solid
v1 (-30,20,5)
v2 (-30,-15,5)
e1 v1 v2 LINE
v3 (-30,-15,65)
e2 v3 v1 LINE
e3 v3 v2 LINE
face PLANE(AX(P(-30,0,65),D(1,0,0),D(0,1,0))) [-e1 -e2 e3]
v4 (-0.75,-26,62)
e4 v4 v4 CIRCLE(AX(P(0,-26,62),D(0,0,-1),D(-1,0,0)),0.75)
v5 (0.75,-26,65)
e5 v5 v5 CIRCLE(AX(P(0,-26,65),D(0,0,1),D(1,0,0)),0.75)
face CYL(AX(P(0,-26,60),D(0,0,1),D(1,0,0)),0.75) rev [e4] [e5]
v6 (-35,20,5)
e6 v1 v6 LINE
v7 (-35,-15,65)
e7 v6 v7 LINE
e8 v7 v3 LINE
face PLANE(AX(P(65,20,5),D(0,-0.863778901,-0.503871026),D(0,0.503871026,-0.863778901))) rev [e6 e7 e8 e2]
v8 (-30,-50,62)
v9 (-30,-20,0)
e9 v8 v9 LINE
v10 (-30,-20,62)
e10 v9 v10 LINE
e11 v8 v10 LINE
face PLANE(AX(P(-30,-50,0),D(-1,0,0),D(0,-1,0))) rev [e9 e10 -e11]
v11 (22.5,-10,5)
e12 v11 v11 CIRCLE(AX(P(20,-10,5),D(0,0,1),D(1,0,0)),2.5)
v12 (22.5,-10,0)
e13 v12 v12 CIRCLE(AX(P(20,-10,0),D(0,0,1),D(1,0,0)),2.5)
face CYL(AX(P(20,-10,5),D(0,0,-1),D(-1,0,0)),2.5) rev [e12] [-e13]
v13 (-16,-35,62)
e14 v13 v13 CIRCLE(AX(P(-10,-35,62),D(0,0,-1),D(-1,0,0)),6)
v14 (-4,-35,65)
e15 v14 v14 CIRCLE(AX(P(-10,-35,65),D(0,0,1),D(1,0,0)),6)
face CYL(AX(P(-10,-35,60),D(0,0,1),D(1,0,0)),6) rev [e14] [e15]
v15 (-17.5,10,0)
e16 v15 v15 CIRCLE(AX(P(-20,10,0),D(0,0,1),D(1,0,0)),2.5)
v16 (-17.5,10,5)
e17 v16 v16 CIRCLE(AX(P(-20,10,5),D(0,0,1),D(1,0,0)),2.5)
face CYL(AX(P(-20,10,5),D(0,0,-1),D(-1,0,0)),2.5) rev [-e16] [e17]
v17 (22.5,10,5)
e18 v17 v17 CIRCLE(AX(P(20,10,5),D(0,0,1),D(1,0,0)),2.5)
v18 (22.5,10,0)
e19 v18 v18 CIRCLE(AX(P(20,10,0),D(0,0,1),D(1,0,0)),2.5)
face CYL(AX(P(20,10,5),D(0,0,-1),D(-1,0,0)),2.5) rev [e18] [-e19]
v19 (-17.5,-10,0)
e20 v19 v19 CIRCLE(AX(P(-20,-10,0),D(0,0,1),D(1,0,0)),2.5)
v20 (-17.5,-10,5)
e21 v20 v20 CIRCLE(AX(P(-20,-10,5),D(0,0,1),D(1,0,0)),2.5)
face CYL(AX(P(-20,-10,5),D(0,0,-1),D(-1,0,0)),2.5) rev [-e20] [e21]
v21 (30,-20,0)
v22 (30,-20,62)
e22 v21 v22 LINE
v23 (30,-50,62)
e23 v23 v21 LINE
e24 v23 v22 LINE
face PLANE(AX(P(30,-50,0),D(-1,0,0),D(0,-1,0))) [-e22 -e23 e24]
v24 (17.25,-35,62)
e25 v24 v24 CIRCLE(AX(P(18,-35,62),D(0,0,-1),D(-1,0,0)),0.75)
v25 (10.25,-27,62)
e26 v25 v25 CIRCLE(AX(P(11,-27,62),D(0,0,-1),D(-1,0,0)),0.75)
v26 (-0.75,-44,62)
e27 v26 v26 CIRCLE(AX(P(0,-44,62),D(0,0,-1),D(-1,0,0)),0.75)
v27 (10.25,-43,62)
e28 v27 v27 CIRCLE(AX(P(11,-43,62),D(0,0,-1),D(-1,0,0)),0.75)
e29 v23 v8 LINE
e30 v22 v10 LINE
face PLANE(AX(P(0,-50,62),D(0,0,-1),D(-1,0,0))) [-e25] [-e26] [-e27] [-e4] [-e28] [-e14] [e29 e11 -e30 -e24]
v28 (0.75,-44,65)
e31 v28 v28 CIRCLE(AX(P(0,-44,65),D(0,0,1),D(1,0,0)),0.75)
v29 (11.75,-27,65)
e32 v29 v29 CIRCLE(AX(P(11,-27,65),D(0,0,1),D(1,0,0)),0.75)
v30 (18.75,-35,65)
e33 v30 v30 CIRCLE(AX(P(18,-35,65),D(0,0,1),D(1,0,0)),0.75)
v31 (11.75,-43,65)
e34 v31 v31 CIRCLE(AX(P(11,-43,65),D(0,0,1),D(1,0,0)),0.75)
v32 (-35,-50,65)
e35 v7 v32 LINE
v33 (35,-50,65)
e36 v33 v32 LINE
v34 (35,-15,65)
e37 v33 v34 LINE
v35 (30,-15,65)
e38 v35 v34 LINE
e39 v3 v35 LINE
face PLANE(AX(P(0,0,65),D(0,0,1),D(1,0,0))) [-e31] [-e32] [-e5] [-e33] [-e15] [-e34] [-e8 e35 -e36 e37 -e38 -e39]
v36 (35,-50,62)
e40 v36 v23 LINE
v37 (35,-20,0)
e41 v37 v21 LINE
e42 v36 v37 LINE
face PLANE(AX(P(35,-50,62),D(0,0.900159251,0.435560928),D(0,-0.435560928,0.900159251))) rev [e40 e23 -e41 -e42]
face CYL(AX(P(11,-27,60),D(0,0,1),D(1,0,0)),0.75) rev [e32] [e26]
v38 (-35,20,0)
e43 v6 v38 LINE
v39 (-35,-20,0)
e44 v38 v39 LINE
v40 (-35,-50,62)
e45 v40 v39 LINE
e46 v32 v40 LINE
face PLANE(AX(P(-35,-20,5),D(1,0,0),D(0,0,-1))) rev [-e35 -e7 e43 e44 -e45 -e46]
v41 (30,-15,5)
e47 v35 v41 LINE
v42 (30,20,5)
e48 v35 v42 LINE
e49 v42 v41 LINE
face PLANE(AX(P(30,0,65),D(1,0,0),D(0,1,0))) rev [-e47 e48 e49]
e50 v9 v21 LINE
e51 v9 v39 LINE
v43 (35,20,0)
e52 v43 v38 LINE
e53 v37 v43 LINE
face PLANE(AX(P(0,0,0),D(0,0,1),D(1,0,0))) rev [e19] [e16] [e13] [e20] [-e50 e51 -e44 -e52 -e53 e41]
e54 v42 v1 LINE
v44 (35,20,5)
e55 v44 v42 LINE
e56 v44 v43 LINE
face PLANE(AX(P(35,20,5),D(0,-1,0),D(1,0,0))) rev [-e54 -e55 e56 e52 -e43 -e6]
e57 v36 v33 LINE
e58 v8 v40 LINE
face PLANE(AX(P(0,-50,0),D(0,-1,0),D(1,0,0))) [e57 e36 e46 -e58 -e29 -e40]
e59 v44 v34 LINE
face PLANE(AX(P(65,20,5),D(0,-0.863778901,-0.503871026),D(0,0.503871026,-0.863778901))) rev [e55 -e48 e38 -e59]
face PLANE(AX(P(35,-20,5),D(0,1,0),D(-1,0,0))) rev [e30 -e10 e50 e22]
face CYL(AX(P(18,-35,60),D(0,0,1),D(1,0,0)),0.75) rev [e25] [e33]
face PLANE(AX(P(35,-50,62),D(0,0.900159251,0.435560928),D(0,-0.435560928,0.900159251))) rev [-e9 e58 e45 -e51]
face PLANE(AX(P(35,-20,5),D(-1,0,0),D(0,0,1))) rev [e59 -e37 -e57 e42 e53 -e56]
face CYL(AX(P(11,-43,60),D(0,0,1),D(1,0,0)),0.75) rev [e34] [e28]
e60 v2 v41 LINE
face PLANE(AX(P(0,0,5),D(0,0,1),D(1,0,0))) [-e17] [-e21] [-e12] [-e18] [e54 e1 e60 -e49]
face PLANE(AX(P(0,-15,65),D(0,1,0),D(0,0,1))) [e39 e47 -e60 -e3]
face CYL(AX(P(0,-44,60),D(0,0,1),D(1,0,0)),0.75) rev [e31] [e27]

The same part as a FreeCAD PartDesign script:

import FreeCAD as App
import Part
import Sketcher
from FreeCAD import Vector

doc = App.newDocument("Part")
params = doc.addObject("Spreadsheet::Sheet", "Params")
for row, (alias, value) in enumerate([
    ("sketch1_diameter", "5 mm"),
    ("sketch1_width", "70 mm"),
    ("sketch1_height", "40 mm"),
    ("pad1_length", "5 mm"),
    ("sketch2_width", "70 mm"),
    ("sketch2_width2", "5 mm"),
    ("sketch2_height", "40 mm"),
    ("sketch2_height2", "35 mm"),
    ("pad2_length", "60 mm"),
    ("sketch3_width", "35 mm"),
    ("sketch3_height", "60 mm"),
    ("pocket1_length", "100 mm"),
    ("sketch4_width", "5 mm"),
    ("sketch4_width2", "70 mm"),
    ("sketch4_height", "65 mm"),
    ("sketch4_height2", "62 mm"),
    ("pad3_length", "30 mm"),
    ("sketch5_width", "30 mm"),
    ("sketch5_height", "62 mm"),
    ("pocket2_length", "70 mm"),
    ("sketch6_diameter", "12 mm"),
    ("sketch6_diameter2", "1.5 mm"),
    ("pocket3_length", "5 mm"),
], start=1):
    params.set(f"A{row}", alias)
    params.set(f"B{row}", "=" + value)
    params.setAlias(f"B{row}", alias)

body = doc.addObject("PartDesign::Body", "Body")

# Sketch on XY plane
sketch1 = body.newObject("Sketcher::SketchObject", "Sketch")
sketch1.AttachmentSupport = (doc.getObject("XY_Plane"), [""])
sketch1.MapMode = "FlatFace"
sketch1.addGeometry(Part.LineSegment(Vector(-35, 20, 0), Vector(-35, -20, 0)), False)
sketch1.addGeometry(Part.LineSegment(Vector(-35, -20, 0), Vector(35, -20, 0)), False)
sketch1.addGeometry(Part.LineSegment(Vector(35, -20, 0), Vector(35, 20, 0)), False)
sketch1.addGeometry(Part.LineSegment(Vector(35, 20, 0), Vector(-35, 20, 0)), False)
sketch1.addGeometry(Part.Circle(Vector(-20, -10, 0), Vector(0, 0, 1), 2.5), False)
sketch1.addGeometry(Part.Circle(Vector(20, -10, 0), Vector(0, 0, 1), 2.5), False)
sketch1.addGeometry(Part.Circle(Vector(-20, 10, 0), Vector(0, 0, 1), 2.5), False)
sketch1.addGeometry(Part.Circle(Vector(20, 10, 0), Vector(0, 0, 1), 2.5), False)
sketch1.addConstraint(Sketcher.Constraint("Coincident", 0, 2, 1, 1))
sketch1.addConstraint(Sketcher.Constraint("Coincident", 1, 2, 2, 1))
sketch1.addConstraint(Sketcher.Constraint("Coincident", 2, 2, 3, 1))
sketch1.addConstraint(Sketcher.Constraint("Coincident", 3, 2, 0, 1))
sketch1.addConstraint(Sketcher.Constraint("Vertical", 0))
sketch1.addConstraint(Sketcher.Constraint("Horizontal", 1))
sketch1.addConstraint(Sketcher.Constraint("Vertical", 2))
sketch1.addConstraint(Sketcher.Constraint("Horizontal", 3))
sketch1.addConstraint(Sketcher.Constraint("Equal", 4, 5))
sketch1.addConstraint(Sketcher.Constraint("Equal", 5, 6))
sketch1.addConstraint(Sketcher.Constraint("Equal", 6, 7))
sketch1.addConstraint(Sketcher.Constraint("Symmetric", 5, 3, 6, 3, -1, 1))
sketch1.addConstraint(Sketcher.Constraint("Symmetric", 4, 3, 7, 3, -1, 1))
sketch1.addConstraint(Sketcher.Constraint("Symmetric", 0, 2, 2, 2, -1, 1))
sketch1.addConstraint(Sketcher.Constraint("Symmetric", 4, 3, 5, 3, -2))
sketch1.addConstraint(Sketcher.Constraint("Diameter", 4, 5.0))
sketch1.addConstraint(Sketcher.Constraint("DistanceX", 1, 1, 1, 2, 70.0))
sketch1.addConstraint(Sketcher.Constraint("DistanceY", 0, 2, 0, 1, 40.0))
sketch1.addConstraint(Sketcher.Constraint("DistanceX", 4, 3, -1, 1, 20.0))
sketch1.addConstraint(Sketcher.Constraint("DistanceY", 4, 3, -1, 1, 10.0))
sketch1.setExpression("Constraints[15]", "Params.sketch1_diameter")
sketch1.setExpression("Constraints[16]", "Params.sketch1_width")
sketch1.setExpression("Constraints[17]", "Params.sketch1_height")
pad1 = body.newObject("PartDesign::Pad", "Pad")
pad1.Profile = sketch1
pad1.setExpression("Length", "Params.pad1_length")

# Sketch on XY plane
sketch2 = body.newObject("Sketcher::SketchObject", "Sketch001")
sketch2.AttachmentSupport = (doc.getObject("XY_Plane"), [""])
sketch2.MapMode = "FlatFace"
sketch2.AttachmentOffset = App.Placement(Vector(0, 0, 5), App.Rotation())
sketch2.addGeometry(Part.LineSegment(Vector(-35, -20, 0), Vector(35, -20, 0)), False)
sketch2.addGeometry(Part.LineSegment(Vector(35, -20, 0), Vector(35, 20, 0)), False)
sketch2.addGeometry(Part.LineSegment(Vector(35, 20, 0), Vector(30, 20, 0)), False)
sketch2.addGeometry(Part.LineSegment(Vector(30, 20, 0), Vector(30, -15, 0)), False)
sketch2.addGeometry(Part.LineSegment(Vector(30, -15, 0), Vector(-30, -15, 0)), False)
sketch2.addGeometry(Part.LineSegment(Vector(-30, -15, 0), Vector(-30, 20, 0)), False)
sketch2.addGeometry(Part.LineSegment(Vector(-30, 20, 0), Vector(-35, 20, 0)), False)
sketch2.addGeometry(Part.LineSegment(Vector(-35, 20, 0), Vector(-35, -20, 0)), False)
sketch2.addConstraint(Sketcher.Constraint("Coincident", 0, 2, 1, 1))
sketch2.addConstraint(Sketcher.Constraint("Coincident", 1, 2, 2, 1))
sketch2.addConstraint(Sketcher.Constraint("Coincident", 2, 2, 3, 1))
sketch2.addConstraint(Sketcher.Constraint("Coincident", 3, 2, 4, 1))
sketch2.addConstraint(Sketcher.Constraint("Coincident", 4, 2, 5, 1))
sketch2.addConstraint(Sketcher.Constraint("Coincident", 5, 2, 6, 1))
sketch2.addConstraint(Sketcher.Constraint("Coincident", 6, 2, 7, 1))
sketch2.addConstraint(Sketcher.Constraint("Coincident", 7, 2, 0, 1))
sketch2.addConstraint(Sketcher.Constraint("Horizontal", 0))
sketch2.addConstraint(Sketcher.Constraint("Vertical", 1))
sketch2.addConstraint(Sketcher.Constraint("Horizontal", 2))
sketch2.addConstraint(Sketcher.Constraint("Vertical", 3))
sketch2.addConstraint(Sketcher.Constraint("Horizontal", 4))
sketch2.addConstraint(Sketcher.Constraint("Vertical", 5))
sketch2.addConstraint(Sketcher.Constraint("Horizontal", 6))
sketch2.addConstraint(Sketcher.Constraint("Vertical", 7))
sketch2.addConstraint(Sketcher.Constraint("Symmetric", 0, 2, 6, 2, -1, 1))
sketch2.addConstraint(Sketcher.Constraint("Symmetric", 2, 2, 5, 2, -2))
sketch2.addConstraint(Sketcher.Constraint("DistanceX", 0, 1, 0, 2, 70.0))
sketch2.addConstraint(Sketcher.Constraint("DistanceX", 2, 2, 2, 1, 5.0))
sketch2.addConstraint(Sketcher.Constraint("DistanceY", 1, 1, 1, 2, 40.0))
sketch2.addConstraint(Sketcher.Constraint("DistanceY", 3, 2, 3, 1, 35.0))
sketch2.setExpression("Constraints[18]", "Params.sketch2_width")
sketch2.setExpression("Constraints[19]", "Params.sketch2_width2")
sketch2.setExpression("Constraints[20]", "Params.sketch2_height")
sketch2.setExpression("Constraints[21]", "Params.sketch2_height2")
pad2 = body.newObject("PartDesign::Pad", "Pad001")
pad2.Profile = sketch2
pad2.setExpression("Length", "Params.pad2_length")

# Sketch on YZ plane
sketch3 = body.newObject("Sketcher::SketchObject", "Sketch002")
sketch3.AttachmentSupport = (doc.getObject("YZ_Plane"), [""])
sketch3.MapMode = "FlatFace"
sketch3.AttachmentOffset = App.Placement(Vector(0, 0, -35), App.Rotation())
sketch3.addGeometry(Part.LineSegment(Vector(20, 5, 0), Vector(-15, 65, 0)), False)
sketch3.addGeometry(Part.LineSegment(Vector(-15, 65, 0), Vector(20, 65, 0)), False)
sketch3.addGeometry(Part.LineSegment(Vector(20, 65, 0), Vector(20, 5, 0)), False)
sketch3.addConstraint(Sketcher.Constraint("Coincident", 0, 2, 1, 1))
sketch3.addConstraint(Sketcher.Constraint("Coincident", 1, 2, 2, 1))
sketch3.addConstraint(Sketcher.Constraint("Coincident", 2, 2, 0, 1))
sketch3.addConstraint(Sketcher.Constraint("Horizontal", 1))
sketch3.addConstraint(Sketcher.Constraint("Vertical", 2))
sketch3.addConstraint(Sketcher.Constraint("DistanceX", 1, 1, 1, 2, 35.0))
sketch3.addConstraint(Sketcher.Constraint("DistanceY", 2, 2, 2, 1, 60.0))
sketch3.addConstraint(Sketcher.Constraint("DistanceX", 0, 2, -1, 1, 15.0))
sketch3.addConstraint(Sketcher.Constraint("DistanceY", -1, 1, 0, 2, 65.0))
sketch3.setExpression("Constraints[5]", "Params.sketch3_width")
sketch3.setExpression("Constraints[6]", "Params.sketch3_height")
pocket1 = body.newObject("PartDesign::Pocket", "Pocket")
pocket1.Profile = sketch3
pocket1.setExpression("Length", "Params.pocket1_length")
pocket1.Reversed = True

# Sketch on XZ plane
sketch4 = body.newObject("Sketcher::SketchObject", "Sketch003")
sketch4.AttachmentSupport = (doc.getObject("XZ_Plane"), [""])
sketch4.MapMode = "FlatFace"
sketch4.AttachmentOffset = App.Placement(Vector(0, 0, 20), App.Rotation())
sketch4.addGeometry(Part.LineSegment(Vector(30, 0, 0), Vector(35, 0, 0)), False)
sketch4.addGeometry(Part.LineSegment(Vector(35, 0, 0), Vector(35, 65, 0)), False)
sketch4.addGeometry(Part.LineSegment(Vector(35, 65, 0), Vector(-35, 65, 0)), False)
sketch4.addGeometry(Part.LineSegment(Vector(-35, 65, 0), Vector(-35, 0, 0)), False)
sketch4.addGeometry(Part.LineSegment(Vector(-35, 0, 0), Vector(-30, 0, 0)), False)
sketch4.addGeometry(Part.LineSegment(Vector(-30, 0, 0), Vector(-30, 62, 0)), False)
sketch4.addGeometry(Part.LineSegment(Vector(-30, 62, 0), Vector(30, 62, 0)), False)
sketch4.addGeometry(Part.LineSegment(Vector(30, 62, 0), Vector(30, 0, 0)), False)
sketch4.addConstraint(Sketcher.Constraint("Coincident", 0, 2, 1, 1))
sketch4.addConstraint(Sketcher.Constraint("Coincident", 1, 2, 2, 1))
sketch4.addConstraint(Sketcher.Constraint("Coincident", 2, 2, 3, 1))
sketch4.addConstraint(Sketcher.Constraint("Coincident", 3, 2, 4, 1))
sketch4.addConstraint(Sketcher.Constraint("Coincident", 4, 2, 5, 1))
sketch4.addConstraint(Sketcher.Constraint("Coincident", 5, 2, 6, 1))
sketch4.addConstraint(Sketcher.Constraint("Coincident", 6, 2, 7, 1))
sketch4.addConstraint(Sketcher.Constraint("Coincident", 7, 2, 0, 1))
sketch4.addConstraint(Sketcher.Constraint("Horizontal", 0))
sketch4.addConstraint(Sketcher.Constraint("Vertical", 1))
sketch4.addConstraint(Sketcher.Constraint("Horizontal", 2))
sketch4.addConstraint(Sketcher.Constraint("Vertical", 3))
sketch4.addConstraint(Sketcher.Constraint("Horizontal", 4))
sketch4.addConstraint(Sketcher.Constraint("Vertical", 5))
sketch4.addConstraint(Sketcher.Constraint("Horizontal", 6))
sketch4.addConstraint(Sketcher.Constraint("Vertical", 7))
sketch4.addConstraint(Sketcher.Constraint("Symmetric", 0, 2, 3, 2, -1, 1))
sketch4.addConstraint(Sketcher.Constraint("Symmetric", 4, 2, 7, 2, -2))
sketch4.addConstraint(Sketcher.Constraint("DistanceX", 0, 1, 0, 2, 5.0))
sketch4.addConstraint(Sketcher.Constraint("DistanceX", 2, 2, 2, 1, 70.0))
sketch4.addConstraint(Sketcher.Constraint("DistanceY", 1, 1, 1, 2, 65.0))
sketch4.addConstraint(Sketcher.Constraint("DistanceY", 5, 1, 5, 2, 62.0))
sketch4.setExpression("Constraints[18]", "Params.sketch4_width")
sketch4.setExpression("Constraints[19]", "Params.sketch4_width2")
sketch4.setExpression("Constraints[20]", "Params.sketch4_height")
sketch4.setExpression("Constraints[21]", "Params.sketch4_height2")
pad3 = body.newObject("PartDesign::Pad", "Pad002")
pad3.Profile = sketch4
pad3.setExpression("Length", "Params.pad3_length")

# Sketch on YZ plane
sketch5 = body.newObject("Sketcher::SketchObject", "Sketch004")
sketch5.AttachmentSupport = (doc.getObject("YZ_Plane"), [""])
sketch5.MapMode = "FlatFace"
sketch5.AttachmentOffset = App.Placement(Vector(0, 0, -35), App.Rotation())
sketch5.addGeometry(Part.LineSegment(Vector(-50, 62, 0), Vector(-20, 0, 0)), False)
sketch5.addGeometry(Part.LineSegment(Vector(-20, 0, 0), Vector(-50, 0, 0)), False)
sketch5.addGeometry(Part.LineSegment(Vector(-50, 0, 0), Vector(-50, 62, 0)), False)
sketch5.addConstraint(Sketcher.Constraint("Coincident", 0, 2, 1, 1))
sketch5.addConstraint(Sketcher.Constraint("Coincident", 1, 2, 2, 1))
sketch5.addConstraint(Sketcher.Constraint("Coincident", 2, 2, 0, 1))
sketch5.addConstraint(Sketcher.Constraint("Horizontal", 1))
sketch5.addConstraint(Sketcher.Constraint("Vertical", 2))
sketch5.addConstraint(Sketcher.Constraint("PointOnObject", 0, 2, -1))
sketch5.addConstraint(Sketcher.Constraint("DistanceX", 1, 2, 1, 1, 30.0))
sketch5.addConstraint(Sketcher.Constraint("DistanceY", 2, 1, 2, 2, 62.0))
sketch5.addConstraint(Sketcher.Constraint("DistanceX", 0, 2, -1, 1, 20.0))
sketch5.setExpression("Constraints[6]", "Params.sketch5_width")
sketch5.setExpression("Constraints[7]", "Params.sketch5_height")
pocket2 = body.newObject("PartDesign::Pocket", "Pocket001")
pocket2.Profile = sketch5
pocket2.setExpression("Length", "Params.pocket2_length")
pocket2.Reversed = True

# Sketch on XY plane
sketch6 = body.newObject("Sketcher::SketchObject", "Sketch005")
sketch6.AttachmentSupport = (doc.getObject("XY_Plane"), [""])
sketch6.MapMode = "FlatFace"
sketch6.AttachmentOffset = App.Placement(Vector(0, 0, 65), App.Rotation())
sketch6.addGeometry(Part.Circle(Vector(-10, -35, 0), Vector(0, 0, 1), 6), False)
sketch6.addGeometry(Part.Circle(Vector(18, -35, 0), Vector(0, 0, 1), 0.75), False)
sketch6.addGeometry(Part.Circle(Vector(11, -43, 0), Vector(0, 0, 1), 0.75), False)
sketch6.addGeometry(Part.Circle(Vector(0, -44, 0), Vector(0, 0, 1), 0.75), False)
sketch6.addGeometry(Part.Circle(Vector(11, -27, 0), Vector(0, 0, 1), 0.75), False)
sketch6.addGeometry(Part.Circle(Vector(0, -26, 0), Vector(0, 0, 1), 0.75), False)
sketch6.addConstraint(Sketcher.Constraint("Equal", 1, 2))
sketch6.addConstraint(Sketcher.Constraint("Equal", 2, 3))
sketch6.addConstraint(Sketcher.Constraint("Equal", 3, 4))
sketch6.addConstraint(Sketcher.Constraint("Equal", 4, 5))
sketch6.addConstraint(Sketcher.Constraint("PointOnObject", 3, 3, -2))
sketch6.addConstraint(Sketcher.Constraint("PointOnObject", 5, 3, -2))
sketch6.addConstraint(Sketcher.Constraint("Horizontal", 0, 3, 1, 3))
sketch6.addConstraint(Sketcher.Constraint("Vertical", 2, 3, 4, 3))
sketch6.addConstraint(Sketcher.Constraint("Diameter", 0, 12.0))
sketch6.addConstraint(Sketcher.Constraint("Diameter", 1, 1.5))
sketch6.addConstraint(Sketcher.Constraint("DistanceX", 0, 3, -1, 1, 10.0))
sketch6.addConstraint(Sketcher.Constraint("DistanceY", 0, 3, -1, 1, 35.0))
sketch6.addConstraint(Sketcher.Constraint("DistanceX", -1, 1, 1, 3, 18.0))
sketch6.addConstraint(Sketcher.Constraint("DistanceX", -1, 1, 2, 3, 11.0))
sketch6.addConstraint(Sketcher.Constraint("DistanceY", 2, 3, -1, 1, 43.0))
sketch6.addConstraint(Sketcher.Constraint("DistanceY", 3, 3, -1, 1, 44.0))
sketch6.addConstraint(Sketcher.Constraint("DistanceY", 4, 3, -1, 1, 27.0))
sketch6.addConstraint(Sketcher.Constraint("DistanceY", 5, 3, -1, 1, 26.0))
sketch6.setExpression("Constraints[8]", "Params.sketch6_diameter")
sketch6.setExpression("Constraints[9]", "Params.sketch6_diameter2")
pocket3 = body.newObject("PartDesign::Pocket", "Pocket002")
pocket3.Profile = sketch6
pocket3.setExpression("Length", "Params.pocket3_length")

doc.recompute()
